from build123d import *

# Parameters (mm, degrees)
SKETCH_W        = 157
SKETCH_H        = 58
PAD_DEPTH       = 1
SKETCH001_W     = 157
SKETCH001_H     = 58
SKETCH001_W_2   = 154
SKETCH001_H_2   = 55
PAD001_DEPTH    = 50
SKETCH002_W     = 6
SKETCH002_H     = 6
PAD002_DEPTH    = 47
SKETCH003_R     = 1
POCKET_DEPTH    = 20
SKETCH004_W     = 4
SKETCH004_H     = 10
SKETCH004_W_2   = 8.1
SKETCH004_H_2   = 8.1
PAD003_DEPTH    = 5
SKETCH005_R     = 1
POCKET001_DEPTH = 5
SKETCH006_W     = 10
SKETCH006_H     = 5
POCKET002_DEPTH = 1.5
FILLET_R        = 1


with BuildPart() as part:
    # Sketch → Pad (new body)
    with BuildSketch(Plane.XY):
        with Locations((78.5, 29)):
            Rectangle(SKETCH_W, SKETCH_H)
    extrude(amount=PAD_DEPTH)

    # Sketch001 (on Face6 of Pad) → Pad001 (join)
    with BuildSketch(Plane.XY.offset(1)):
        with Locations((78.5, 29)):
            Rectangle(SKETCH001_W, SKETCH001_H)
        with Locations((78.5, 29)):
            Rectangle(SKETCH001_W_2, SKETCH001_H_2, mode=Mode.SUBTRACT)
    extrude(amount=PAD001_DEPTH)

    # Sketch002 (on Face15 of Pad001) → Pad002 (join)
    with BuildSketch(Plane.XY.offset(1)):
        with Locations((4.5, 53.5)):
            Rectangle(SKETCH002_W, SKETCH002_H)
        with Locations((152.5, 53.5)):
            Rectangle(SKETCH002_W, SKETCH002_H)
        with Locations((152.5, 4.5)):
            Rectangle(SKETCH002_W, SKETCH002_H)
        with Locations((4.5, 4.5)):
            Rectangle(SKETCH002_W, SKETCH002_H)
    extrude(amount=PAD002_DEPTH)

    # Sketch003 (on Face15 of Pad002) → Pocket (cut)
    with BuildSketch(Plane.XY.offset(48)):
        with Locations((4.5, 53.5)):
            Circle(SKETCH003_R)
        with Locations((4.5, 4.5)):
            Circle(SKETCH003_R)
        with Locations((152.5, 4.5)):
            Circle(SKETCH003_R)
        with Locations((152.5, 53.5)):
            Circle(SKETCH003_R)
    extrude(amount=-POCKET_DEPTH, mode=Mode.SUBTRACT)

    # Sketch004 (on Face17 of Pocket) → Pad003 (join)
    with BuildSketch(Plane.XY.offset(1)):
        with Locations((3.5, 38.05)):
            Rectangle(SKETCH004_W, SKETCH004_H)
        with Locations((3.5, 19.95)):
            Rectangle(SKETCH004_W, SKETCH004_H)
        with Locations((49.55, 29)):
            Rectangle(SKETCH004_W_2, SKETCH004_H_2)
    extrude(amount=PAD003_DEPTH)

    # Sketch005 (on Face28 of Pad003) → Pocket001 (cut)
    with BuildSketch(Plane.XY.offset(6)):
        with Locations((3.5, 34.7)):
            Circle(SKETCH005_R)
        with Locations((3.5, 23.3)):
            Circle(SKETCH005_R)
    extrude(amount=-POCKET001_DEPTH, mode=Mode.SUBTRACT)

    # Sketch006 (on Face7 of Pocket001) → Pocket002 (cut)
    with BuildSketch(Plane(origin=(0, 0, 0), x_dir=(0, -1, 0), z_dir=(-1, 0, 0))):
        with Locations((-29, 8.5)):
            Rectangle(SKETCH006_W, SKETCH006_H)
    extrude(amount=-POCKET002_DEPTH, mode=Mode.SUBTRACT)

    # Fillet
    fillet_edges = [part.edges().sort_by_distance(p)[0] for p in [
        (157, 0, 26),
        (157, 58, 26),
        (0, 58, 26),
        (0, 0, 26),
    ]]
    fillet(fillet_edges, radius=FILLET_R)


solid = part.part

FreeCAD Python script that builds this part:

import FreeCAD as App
import Part
import Sketcher
from FreeCAD import Vector
Q = App.Units.Quantity


def edges_at(feature, points):
    """Names of the edges that pass closest to the given points."""
    edges = feature.Shape.Edges
    near = lambda p: min(range(len(edges)), key=lambda i: edges[i].distToShape(Part.Vertex(*p))[0])
    return sorted({f"Edge{near(p) + 1}" for p in points})

doc = App.newDocument("Part")
body = doc.addObject("PartDesign::Body", "Body")

sketch1 = body.newObject("Sketcher::SketchObject", "Sketch")
sketch1.AttachmentSupport = (doc.getObject("XY_Plane"), [""])
sketch1.MapMode = "FlatFace"
sketch1.addGeometry([
    Part.LineSegment(Vector(0, 58, 0), Vector(0, 0, 0)),
    Part.LineSegment(Vector(0, 0, 0), Vector(157, 0, 0)),
    Part.LineSegment(Vector(157, 0, 0), Vector(157, 58, 0)),
    Part.LineSegment(Vector(157, 58, 0), Vector(0, 58, 0)),
], False)
sketch1.addConstraint([
    Sketcher.Constraint("Coincident", 0, 2, 1, 1),
    Sketcher.Constraint("Coincident", 1, 2, 2, 1),
    Sketcher.Constraint("Coincident", 2, 2, 3, 1),
    Sketcher.Constraint("Coincident", 3, 2, 0, 1),
    Sketcher.Constraint("Vertical", 0),
    Sketcher.Constraint("Horizontal", 1),
    Sketcher.Constraint("Vertical", 2),
    Sketcher.Constraint("Horizontal", 3),
    Sketcher.Constraint("Coincident", 0, 2, -1, 1),
    Sketcher.Constraint("DistanceX", 1, 1, 1, 2, Q("157 mm")),
    Sketcher.Constraint("DistanceY", 0, 2, 0, 1, Q("58 mm")),
])
pad1 = body.newObject("PartDesign::Pad", "Pad")
pad1.Profile = sketch1
pad1.Length = 1

sketch2 = body.newObject("Sketcher::SketchObject", "Sketch001")
sketch2.AttachmentSupport = (doc.getObject("XY_Plane"), [""])
sketch2.MapMode = "FlatFace"
sketch2.AttachmentOffset = App.Placement(Vector(0, 0, 1), App.Rotation())
sketch2.addGeometry([
    Part.LineSegment(Vector(0, 58, 0), Vector(0, 0, 0)),
    Part.LineSegment(Vector(0, 0, 0), Vector(157, 0, 0)),
    Part.LineSegment(Vector(157, 0, 0), Vector(157, 58, 0)),
    Part.LineSegment(Vector(157, 58, 0), Vector(0, 58, 0)),
    Part.LineSegment(Vector(155.5, 1.5, 0), Vector(1.5, 1.5, 0)),
    Part.LineSegment(Vector(1.5, 1.5, 0), Vector(1.5, 56.5, 0)),
    Part.LineSegment(Vector(1.5, 56.5, 0), Vector(155.5, 56.5, 0)),
    Part.LineSegment(Vector(155.5, 56.5, 0), Vector(155.5, 1.5, 0)),
], False)
sketch2.addConstraint([
    Sketcher.Constraint("Coincident", 0, 2, 1, 1),
    Sketcher.Constraint("Coincident", 1, 2, 2, 1),
    Sketcher.Constraint("Coincident", 2, 2, 3, 1),
    Sketcher.Constraint("Coincident", 3, 2, 0, 1),
    Sketcher.Constraint("Coincident", 4, 2, 5, 1),
    Sketcher.Constraint("Coincident", 5, 2, 6, 1),
    Sketcher.Constraint("Coincident", 6, 2, 7, 1),
    Sketcher.Constraint("Coincident", 7, 2, 4, 1),
    Sketcher.Constraint("Vertical", 0),
    Sketcher.Constraint("Horizontal", 1),
    Sketcher.Constraint("Vertical", 2),
    Sketcher.Constraint("Horizontal", 3),
    Sketcher.Constraint("Horizontal", 4),
    Sketcher.Constraint("Vertical", 5),
    Sketcher.Constraint("Horizontal", 6),
    Sketcher.Constraint("Vertical", 7),
    Sketcher.Constraint("Coincident", 0, 2, -1, 1),
    Sketcher.Constraint("DistanceX", 1, 1, 1, 2, Q("157 mm")),
    Sketcher.Constraint("DistanceX", 4, 2, 4, 1, Q("154 mm")),
    Sketcher.Constraint("DistanceY", 0, 2, 0, 1, Q("58 mm")),
    Sketcher.Constraint("DistanceY", 5, 1, 5, 2, Q("55 mm")),
    Sketcher.Constraint("DistanceX", -1, 1, 4, 2, Q("1.5 mm")),
    Sketcher.Constraint("DistanceY", -1, 1, 4, 2, Q("1.5 mm")),
])
pad2 = body.newObject("PartDesign::Pad", "Pad001")
pad2.Profile = sketch2
pad2.Length = 50

sketch3 = body.newObject("Sketcher::SketchObject", "Sketch002")
sketch3.AttachmentSupport = (doc.getObject("XY_Plane"), [""])
sketch3.MapMode = "FlatFace"
sketch3.AttachmentOffset = App.Placement(Vector(0, 0, 1), App.Rotation())
sketch3.addGeometry([
    Part.LineSegment(Vector(1.5, 56.5, 0), Vector(1.5, 50.5, 0)),
    Part.LineSegment(Vector(1.5, 50.5, 0), Vector(7.5, 50.5, 0)),
    Part.LineSegment(Vector(7.5, 50.5, 0), Vector(7.5, 56.5, 0)),
    Part.LineSegment(Vector(7.5, 56.5, 0), Vector(1.5, 56.5, 0)),
    Part.LineSegment(Vector(149.5, 56.5, 0), Vector(149.5, 50.5, 0)),
    Part.LineSegment(Vector(149.5, 50.5, 0), Vector(155.5, 50.5, 0)),
    Part.LineSegment(Vector(155.5, 50.5, 0), Vector(155.5, 56.5, 0)),
    Part.LineSegment(Vector(155.5, 56.5, 0), Vector(149.5, 56.5, 0)),
    Part.LineSegment(Vector(149.5, 7.5, 0), Vector(149.5, 1.5, 0)),
    Part.LineSegment(Vector(149.5, 1.5, 0), Vector(155.5, 1.5, 0)),
    Part.LineSegment(Vector(155.5, 1.5, 0), Vector(155.5, 7.5, 0)),
    Part.LineSegment(Vector(155.5, 7.5, 0), Vector(149.5, 7.5, 0)),
    Part.LineSegment(Vector(1.5, 7.5, 0), Vector(1.5, 1.5, 0)),
    Part.LineSegment(Vector(1.5, 1.5, 0), Vector(7.5, 1.5, 0)),
    Part.LineSegment(Vector(7.5, 1.5, 0), Vector(7.5, 7.5, 0)),
    Part.LineSegment(Vector(7.5, 7.5, 0), Vector(1.5, 7.5, 0)),
], False)
sketch3.addConstraint([
    Sketcher.Constraint("Coincident", 0, 2, 1, 1),
    Sketcher.Constraint("Coincident", 1, 2, 2, 1),
    Sketcher.Constraint("Coincident", 2, 2, 3, 1),
    Sketcher.Constraint("Coincident", 3, 2, 0, 1),
    Sketcher.Constraint("Coincident", 4, 2, 5, 1),
    Sketcher.Constraint("Coincident", 5, 2, 6, 1),
    Sketcher.Constraint("Coincident", 6, 2, 7, 1),
    Sketcher.Constraint("Coincident", 7, 2, 4, 1),
    Sketcher.Constraint("Coincident", 8, 2, 9, 1),
    Sketcher.Constraint("Coincident", 9, 2, 10, 1),
    Sketcher.Constraint("Coincident", 10, 2, 11, 1),
    Sketcher.Constraint("Coincident", 11, 2, 8, 1),
    Sketcher.Constraint("Coincident", 12, 2, 13, 1),
    Sketcher.Constraint("Coincident", 13, 2, 14, 1),
    Sketcher.Constraint("Coincident", 14, 2, 15, 1),
    Sketcher.Constraint("Coincident", 15, 2, 12, 1),
    Sketcher.Constraint("Vertical", 0),
    Sketcher.Constraint("Horizontal", 1),
    Sketcher.Constraint("Vertical", 2),
    Sketcher.Constraint("Horizontal", 3),
    Sketcher.Constraint("Vertical", 4),
    Sketcher.Constraint("Horizontal", 5),
    Sketcher.Constraint("Vertical", 6),
    Sketcher.Constraint("Horizontal", 7),
    Sketcher.Constraint("Vertical", 8),
    Sketcher.Constraint("Horizontal", 9),
    Sketcher.Constraint("Vertical", 10),
    Sketcher.Constraint("Horizontal", 11),
    Sketcher.Constraint("Vertical", 12),
    Sketcher.Constraint("Horizontal", 13),
    Sketcher.Constraint("Vertical", 14),
    Sketcher.Constraint("Horizontal", 15),
    Sketcher.Constraint("Horizontal", 1, 2, 4, 2),
    Sketcher.Constraint("Horizontal", 3, 2, 6, 2),
    Sketcher.Constraint("Horizontal", 9, 2, 12, 2),
    Sketcher.Constraint("Horizontal", 11, 2, 14, 2),
    Sketcher.Constraint("Vertical", 7, 2, 8, 2),
    Sketcher.Constraint("Vertical", 6, 2, 9, 2),
    Sketcher.Constraint("Vertical", 3, 2, 12, 2),
    Sketcher.Constraint("Vertical", 2, 2, 13, 2),
    Sketcher.Constraint("Equal", 3, 5),
    Sketcher.Constraint("Equal", 15, 0),
    Sketcher.Constraint("Equal", 6, 8),
    Sketcher.Constraint("DistanceX", 1, 1, 1, 2, Q("6 mm")),
    Sketcher.Constraint("DistanceX", 1, 2, 4, 2, Q("142 mm")),
    Sketcher.Constraint("DistanceY", 8, 2, 4, 2, Q("49 mm")),
    Sketcher.Constraint("DistanceX", -1, 1, 0, 2, Q("1.5 mm")),
    Sketcher.Constraint("DistanceY", -1, 1, 0, 2, Q("50.5 mm")),
])
pad3 = body.newObject("PartDesign::Pad", "Pad002")
pad3.Profile = sketch3
pad3.Length = 47

sketch4 = body.newObject("Sketcher::SketchObject", "Sketch003")
sketch4.AttachmentSupport = (doc.getObject("XY_Plane"), [""])
sketch4.MapMode = "FlatFace"
sketch4.AttachmentOffset = App.Placement(Vector(0, 0, 48), App.Rotation())
sketch4.addGeometry([
    Part.Circle(Vector(4.5, 53.5, 0), Vector(0, 0, 1), 1),
    Part.Circle(Vector(4.5, 4.5, 0), Vector(0, 0, 1), 1),
    Part.Circle(Vector(152.5, 4.5, 0), Vector(0, 0, 1), 1),
    Part.Circle(Vector(152.5, 53.5, 0), Vector(0, 0, 1), 1),
], False)
sketch4.addConstraint([
    Sketcher.Constraint("Equal", 0, 1),
    Sketcher.Constraint("Equal", 1, 2),
    Sketcher.Constraint("Equal", 2, 3),
    Sketcher.Constraint("Horizontal", 1, 3, 2, 3),
    Sketcher.Constraint("Horizontal", 0, 3, 3, 3),
    Sketcher.Constraint("Vertical", 0, 3, 1, 3),
    Sketcher.Constraint("Vertical", 2, 3, 3, 3),
    Sketcher.Constraint("Diameter", 0, Q("2 mm")),
    Sketcher.Constraint("DistanceY", 1, 3, 0, 3, Q("49 mm")),
    Sketcher.Constraint("DistanceX", 1, 3, 2, 3, Q("148 mm")),
    Sketcher.Constraint("DistanceX", -1, 1, 0, 3, Q("4.5 mm")),
    Sketcher.Constraint("DistanceY", -1, 1, 0, 3, Q("53.5 mm")),
])
pocket1 = body.newObject("PartDesign::Pocket", "Pocket")
pocket1.Profile = sketch4
pocket1.Length = 20

sketch5 = body.newObject("Sketcher::SketchObject", "Sketch004")
sketch5.AttachmentSupport = (doc.getObject("XY_Plane"), [""])
sketch5.MapMode = "FlatFace"
sketch5.AttachmentOffset = App.Placement(Vector(0, 0, 1), App.Rotation())
sketch5.addGeometry([
    Part.LineSegment(Vector(1.5, 43.05, 0), Vector(1.5, 33.05, 0)),
    Part.LineSegment(Vector(1.5, 33.05, 0), Vector(5.5, 33.05, 0)),
    Part.LineSegment(Vector(5.5, 33.05, 0), Vector(5.5, 43.05, 0)),
    Part.LineSegment(Vector(5.5, 43.05, 0), Vector(1.5, 43.05, 0)),
    Part.LineSegment(Vector(1.5, 24.95, 0), Vector(1.5, 14.95, 0)),
    Part.LineSegment(Vector(1.5, 14.95, 0), Vector(5.5, 14.95, 0)),
    Part.LineSegment(Vector(5.5, 14.95, 0), Vector(5.5, 24.95, 0)),
    Part.LineSegment(Vector(5.5, 24.95, 0), Vector(1.5, 24.95, 0)),
    Part.LineSegment(Vector(45.5, 33.05, 0), Vector(45.5, 24.95, 0)),
    Part.LineSegment(Vector(45.5, 24.95, 0), Vector(53.6, 24.95, 0)),
    Part.LineSegment(Vector(53.6, 24.95, 0), Vector(53.6, 33.05, 0)),
    Part.LineSegment(Vector(53.6, 33.05, 0), Vector(45.5, 33.05, 0)),
], False)
sketch5.addConstraint([
    Sketcher.Constraint("Coincident", 0, 2, 1, 1),
    Sketcher.Constraint("Coincident", 1, 2, 2, 1),
    Sketcher.Constraint("Coincident", 2, 2, 3, 1),
    Sketcher.Constraint("Coincident", 3, 2, 0, 1),
    Sketcher.Constraint("Coincident", 4, 2, 5, 1),
    Sketcher.Constraint("Coincident", 5, 2, 6, 1),
    Sketcher.Constraint("Coincident", 6, 2, 7, 1),
    Sketcher.Constraint("Coincident", 7, 2, 4, 1),
    Sketcher.Constraint("Coincident", 8, 2, 9, 1),
    Sketcher.Constraint("Coincident", 9, 2, 10, 1),
    Sketcher.Constraint("Coincident", 10, 2, 11, 1),
    Sketcher.Constraint("Coincident", 11, 2, 8, 1),
    Sketcher.Constraint("Vertical", 0),
    Sketcher.Constraint("Horizontal", 1),
    Sketcher.Constraint("Vertical", 2),
    Sketcher.Constraint("Horizontal", 3),
    Sketcher.Constraint("Vertical", 4),
    Sketcher.Constraint("Horizontal", 5),
    Sketcher.Constraint("Vertical", 6),
    Sketcher.Constraint("Horizontal", 7),
    Sketcher.Constraint("Vertical", 8),
    Sketcher.Constraint("Horizontal", 9),
    Sketcher.Constraint("Vertical", 10),
    Sketcher.Constraint("Horizontal", 11),
    Sketcher.Constraint("Horizontal", 7, 2, 8, 2),
    Sketcher.Constraint("Horizontal", 1, 2, 10, 2),
    Sketcher.Constraint("Vertical", 3, 2, 4, 2),
    Sketcher.Constraint("Vertical", 2, 2, 5, 2),
    Sketcher.Constraint("Equal", 2, 4),
    Sketcher.Constraint("Equal", 11, 8),
    Sketcher.Constraint("DistanceX", 1, 1, 1, 2, Q("4 mm")),
    Sketcher.Constraint("DistanceY", 0, 2, 0, 1, Q("10 mm")),
    Sketcher.Constraint("DistanceX", 9, 1, 9, 2, Q("8.1 mm")),
    Sketcher.Constraint("DistanceX", 6, 2, 8, 2, Q("40 mm")),
    Sketcher.Constraint("DistanceX", -1, 1, 0, 2, Q("1.5 mm")),
    Sketcher.Constraint("DistanceY", -1, 1, 0, 2, Q("33.05 mm")),
])
pad4 = body.newObject("PartDesign::Pad", "Pad003")
pad4.Profile = sketch5
pad4.Length = 5

sketch6 = body.newObject("Sketcher::SketchObject", "Sketch005")
sketch6.AttachmentSupport = (doc.getObject("XY_Plane"), [""])
sketch6.MapMode = "FlatFace"
sketch6.AttachmentOffset = App.Placement(Vector(0, 0, 6), App.Rotation())
sketch6.addGeometry([
    Part.Circle(Vector(3.5, 34.7, 0), Vector(0, 0, 1), 1),
    Part.Circle(Vector(3.5, 23.3, 0), Vector(0, 0, 1), 1),
], False)
sketch6.addConstraint([
    Sketcher.Constraint("Equal", 0, 1),
    Sketcher.Constraint("Vertical", 0, 3, 1, 3),
    Sketcher.Constraint("Diameter", 0, Q("2 mm")),
    Sketcher.Constraint("DistanceX", -1, 1, 0, 3, Q("3.5 mm")),
    Sketcher.Constraint("DistanceY", -1, 1, 0, 3, Q("34.7 mm")),
    Sketcher.Constraint("DistanceY", -1, 1, 1, 3, Q("23.3 mm")),
])
pocket2 = body.newObject("PartDesign::Pocket", "Pocket001")
pocket2.Profile = sketch6
pocket2.Length = 5

sketch7 = body.newObject("Sketcher::SketchObject", "Sketch006")
sketch7.AttachmentSupport = (doc.getObject("YZ_Plane"), [""])
sketch7.MapMode = "FlatFace"
sketch7.addGeometry([
    Part.LineSegment(Vector(34, 11, 0), Vector(34, 6, 0)),
    Part.LineSegment(Vector(34, 6, 0), Vector(24, 6, 0)),
    Part.LineSegment(Vector(24, 6, 0), Vector(24, 11, 0)),
    Part.LineSegment(Vector(24, 11, 0), Vector(34, 11, 0)),
], False)
sketch7.addConstraint([
    Sketcher.Constraint("Coincident", 0, 2, 1, 1),
    Sketcher.Constraint("Coincident", 1, 2, 2, 1),
    Sketcher.Constraint("Coincident", 2, 2, 3, 1),
    Sketcher.Constraint("Coincident", 3, 2, 0, 1),
    Sketcher.Constraint("Vertical", 0),
    Sketcher.Constraint("Horizontal", 1),
    Sketcher.Constraint("Vertical", 2),
    Sketcher.Constraint("Horizontal", 3),
    Sketcher.Constraint("DistanceX", 1, 2, 1, 1, Q("10 mm")),
    Sketcher.Constraint("DistanceY", 0, 2, 0, 1, Q("5 mm")),
    Sketcher.Constraint("DistanceX", -1, 1, 0, 2, Q("34 mm")),
    Sketcher.Constraint("DistanceY", -1, 1, 0, 2, Q("6 mm")),
])
pocket3 = body.newObject("PartDesign::Pocket", "Pocket002")
pocket3.Profile = sketch7
pocket3.Length = 1.5
pocket3.Reversed = True
doc.recompute()

fillet = body.newObject("PartDesign::Fillet", "Fillet")
fillet.Base = (pocket3, edges_at(pocket3, [
    (157, 0, 25.5),
    (157, 58, 25.5),
    (0, 58, 25.5),
    (0, 0, 25.5),
]))
fillet.Radius = 1

doc.recompute()
